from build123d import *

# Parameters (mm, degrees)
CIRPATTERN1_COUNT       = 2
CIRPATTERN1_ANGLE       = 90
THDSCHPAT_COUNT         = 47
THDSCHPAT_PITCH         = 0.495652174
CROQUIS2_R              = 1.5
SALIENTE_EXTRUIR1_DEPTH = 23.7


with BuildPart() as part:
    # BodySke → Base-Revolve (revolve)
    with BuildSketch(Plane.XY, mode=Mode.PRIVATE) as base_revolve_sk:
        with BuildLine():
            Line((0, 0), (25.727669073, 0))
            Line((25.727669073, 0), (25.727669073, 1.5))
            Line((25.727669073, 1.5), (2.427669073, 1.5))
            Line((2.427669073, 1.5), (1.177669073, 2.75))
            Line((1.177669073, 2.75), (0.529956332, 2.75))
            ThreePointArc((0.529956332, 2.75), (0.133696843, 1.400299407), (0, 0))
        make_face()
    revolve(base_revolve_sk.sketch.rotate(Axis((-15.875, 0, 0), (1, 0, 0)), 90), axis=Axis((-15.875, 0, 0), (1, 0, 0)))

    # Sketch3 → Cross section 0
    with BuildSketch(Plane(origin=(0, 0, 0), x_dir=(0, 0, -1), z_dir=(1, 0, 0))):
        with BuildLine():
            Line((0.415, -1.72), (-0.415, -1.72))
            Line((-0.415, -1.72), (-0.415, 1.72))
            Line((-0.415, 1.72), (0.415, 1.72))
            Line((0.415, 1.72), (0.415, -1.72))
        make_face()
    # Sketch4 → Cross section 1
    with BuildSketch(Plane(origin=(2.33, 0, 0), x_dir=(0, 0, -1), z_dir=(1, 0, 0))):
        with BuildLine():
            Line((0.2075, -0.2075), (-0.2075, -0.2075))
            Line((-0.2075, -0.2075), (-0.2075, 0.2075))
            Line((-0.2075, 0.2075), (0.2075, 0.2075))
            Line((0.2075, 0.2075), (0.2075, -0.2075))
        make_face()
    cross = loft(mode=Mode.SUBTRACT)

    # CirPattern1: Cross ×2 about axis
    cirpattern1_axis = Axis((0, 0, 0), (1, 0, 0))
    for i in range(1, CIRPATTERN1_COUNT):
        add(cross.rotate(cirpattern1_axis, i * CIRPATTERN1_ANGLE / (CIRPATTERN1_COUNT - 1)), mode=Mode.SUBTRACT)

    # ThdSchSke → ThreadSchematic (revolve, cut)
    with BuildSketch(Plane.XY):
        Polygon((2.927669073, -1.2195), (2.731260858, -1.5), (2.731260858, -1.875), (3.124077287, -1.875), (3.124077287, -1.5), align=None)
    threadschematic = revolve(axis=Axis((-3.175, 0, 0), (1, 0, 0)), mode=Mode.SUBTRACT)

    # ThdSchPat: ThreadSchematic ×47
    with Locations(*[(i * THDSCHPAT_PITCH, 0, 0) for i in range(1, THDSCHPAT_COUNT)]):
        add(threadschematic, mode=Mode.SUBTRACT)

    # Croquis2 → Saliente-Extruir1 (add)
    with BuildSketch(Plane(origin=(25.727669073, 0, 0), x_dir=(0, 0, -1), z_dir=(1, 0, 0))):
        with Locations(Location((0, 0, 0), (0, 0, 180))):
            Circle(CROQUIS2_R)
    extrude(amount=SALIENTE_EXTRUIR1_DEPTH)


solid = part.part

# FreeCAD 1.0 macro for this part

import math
import FreeCAD as App
import Part
import Sketcher
from FreeCAD import Vector
Q = App.Units.Quantity

doc = App.newDocument("Part")
body = doc.addObject("PartDesign::Body", "Body")

sketch1 = body.newObject("Sketcher::SketchObject", "Sketch")
sketch1.AttachmentSupport = (doc.getObject("XY_Plane"), [""])
sketch1.MapMode = "FlatFace"
sketch1.addGeometry(Part.LineSegment(Vector(0, 0, 0), Vector(25.727669, 0, 0)), False)
sketch1.addGeometry(Part.LineSegment(Vector(25.727669, 0, 0), Vector(25.727669, 1.5, 0)), False)
sketch1.addGeometry(Part.LineSegment(Vector(25.727669, 1.5, 0), Vector(2.427669, 1.5, 0)), False)
sketch1.addGeometry(Part.LineSegment(Vector(2.427669, 1.5, 0), Vector(1.177669, 2.75, 0)), False)
sketch1.addGeometry(Part.LineSegment(Vector(1.177669, 2.75, 0), Vector(0.529956, 2.75, 0)), False)
sketch1.addGeometry(Part.ArcOfCircle(Part.Circle(Vector(7.4, 0, 0), Vector(0, 0, 1), 7.4), math.radians(158.184338), math.radians(180)), False)
sketch1.addConstraint(Sketcher.Constraint("Coincident", 0, 2, 1, 1))
sketch1.addConstraint(Sketcher.Constraint("Coincident", 1, 2, 2, 1))
sketch1.addConstraint(Sketcher.Constraint("Coincident", 2, 2, 3, 1))
sketch1.addConstraint(Sketcher.Constraint("Coincident", 3, 2, 4, 1))
sketch1.addConstraint(Sketcher.Constraint("Coincident", 4, 2, 5, 1))
sketch1.addConstraint(Sketcher.Constraint("Coincident", 5, 2, 0, 1))
sketch1.addConstraint(Sketcher.Constraint("Horizontal", 0))
sketch1.addConstraint(Sketcher.Constraint("Vertical", 1))
sketch1.addConstraint(Sketcher.Constraint("Horizontal", 2))
sketch1.addConstraint(Sketcher.Constraint("Horizontal", 4))
sketch1.addConstraint(Sketcher.Constraint("Coincident", 5, 2, -1, 1))
sketch1.addConstraint(Sketcher.Constraint("PointOnObject", 5, 3, -1))
sketch1.addConstraint(Sketcher.Constraint("Radius", 5, Q("7.4 mm")))
sketch1.addConstraint(Sketcher.Constraint("Angle", 3, Q("135 deg")))
sketch1.addConstraint(Sketcher.Constraint("DistanceX", 2, 2, 2, 1, Q("23.3 mm")))
sketch1.addConstraint(Sketcher.Constraint("DistanceY", 1, 1, 1, 2, Q("1.5 mm")))
sketch1.addConstraint(Sketcher.Constraint("DistanceY", -1, 1, 3, 2, Q("2.75 mm")))
sketch1.addConstraint(Sketcher.Constraint("DistanceX", 0, 1, 0, 2, Q("25.727669 mm")))
revolution = body.newObject("PartDesign::Revolution", "Revolution")
revolution.Profile = sketch1
revolution.ReferenceAxis = (sketch1, ["H_Axis"])
revolution.Angle = 360

sketch2 = body.newObject("Sketcher::SketchObject", "Sketch001")
sketch2.AttachmentSupport = (doc.getObject("YZ_Plane"), [""])
sketch2.MapMode = "FlatFace"
sketch2.addGeometry(Part.LineSegment(Vector(-1.72, 0.415, 0), Vector(-1.72, -0.415, 0)), False)
sketch2.addGeometry(Part.LineSegment(Vector(-1.72, -0.415, 0), Vector(1.72, -0.415, 0)), False)
sketch2.addGeometry(Part.LineSegment(Vector(1.72, -0.415, 0), Vector(1.72, 0.415, 0)), False)
sketch2.addGeometry(Part.LineSegment(Vector(1.72, 0.415, 0), Vector(-1.72, 0.415, 0)), False)
sketch2.addConstraint(Sketcher.Constraint("Coincident", 0, 2, 1, 1))
sketch2.addConstraint(Sketcher.Constraint("Coincident", 1, 2, 2, 1))
sketch2.addConstraint(Sketcher.Constraint("Coincident", 2, 2, 3, 1))
sketch2.addConstraint(Sketcher.Constraint("Coincident", 3, 2, 0, 1))
sketch2.addConstraint(Sketcher.Constraint("Vertical", 0))
sketch2.addConstraint(Sketcher.Constraint("Horizontal", 1))
sketch2.addConstraint(Sketcher.Constraint("Vertical", 2))
sketch2.addConstraint(Sketcher.Constraint("Horizontal", 3))
sketch2.addConstraint(Sketcher.Constraint("Symmetric", 0, 2, 2, 2, -1, 1))
sketch2.addConstraint(Sketcher.Constraint("DistanceX", 1, 1, 1, 2, Q("3.44 mm")))
sketch2.addConstraint(Sketcher.Constraint("DistanceY", 0, 2, 0, 1, Q("0.83 mm")))

sketch3 = body.newObject("Sketcher::SketchObject", "Sketch002")
sketch3.AttachmentSupport = (doc.getObject("YZ_Plane"), [""])
sketch3.MapMode = "FlatFace"
sketch3.AttachmentOffset = App.Placement(Vector(0, 0, 2.33), App.Rotation())
sketch3.addGeometry(Part.LineSegment(Vector(-0.2075, 0.2075, 0), Vector(-0.2075, -0.2075, 0)), False)
sketch3.addGeometry(Part.LineSegment(Vector(-0.2075, -0.2075, 0), Vector(0.2075, -0.2075, 0)), False)
sketch3.addGeometry(Part.LineSegment(Vector(0.2075, -0.2075, 0), Vector(0.2075, 0.2075, 0)), False)
sketch3.addGeometry(Part.LineSegment(Vector(0.2075, 0.2075, 0), Vector(-0.2075, 0.2075, 0)), False)
sketch3.addConstraint(Sketcher.Constraint("Coincident", 0, 2, 1, 1))
sketch3.addConstraint(Sketcher.Constraint("Coincident", 1, 2, 2, 1))
sketch3.addConstraint(Sketcher.Constraint("Coincident", 2, 2, 3, 1))
sketch3.addConstraint(Sketcher.Constraint("Coincident", 3, 2, 0, 1))
sketch3.addConstraint(Sketcher.Constraint("Vertical", 0))
sketch3.addConstraint(Sketcher.Constraint("Horizontal", 1))
sketch3.addConstraint(Sketcher.Constraint("Vertical", 2))
sketch3.addConstraint(Sketcher.Constraint("Horizontal", 3))
sketch3.addConstraint(Sketcher.Constraint("Symmetric", 0, 2, 2, 2, -1, 1))
sketch3.addConstraint(Sketcher.Constraint("Equal", 3, 0))
sketch3.addConstraint(Sketcher.Constraint("DistanceX", 1, 1, 1, 2, Q("0.415 mm")))

subtractiveloft = body.newObject("PartDesign::SubtractiveLoft", "SubtractiveLoft")
subtractiveloft.Profile = sketch2
subtractiveloft.Sections = [sketch3]
doc.recompute()

polarpattern = body.newObject("PartDesign::PolarPattern", "PolarPattern")
polarpattern.Originals = [subtractiveloft]
polarpattern.Axis = (doc.getObject("X_Axis"), [""])
polarpattern.Angle = 90
polarpattern.Occurrences = 2
body.Tip = polarpattern

sketch4 = body.newObject("Sketcher::SketchObject", "Sketch003")
sketch4.AttachmentSupport = (doc.getObject("XY_Plane"), [""])
sketch4.MapMode = "FlatFace"
sketch4.addGeometry(Part.LineSegment(Vector(2.927669, -1.2195, 0), Vector(2.731261, -1.5, 0)), False)
sketch4.addGeometry(Part.LineSegment(Vector(2.731261, -1.5, 0), Vector(2.731261, -1.875, 0)), False)
sketch4.addGeometry(Part.LineSegment(Vector(2.731261, -1.875, 0), Vector(3.124077, -1.875, 0)), False)
sketch4.addGeometry(Part.LineSegment(Vector(3.124077, -1.875, 0), Vector(3.124077, -1.5, 0)), False)
sketch4.addGeometry(Part.LineSegment(Vector(3.124077, -1.5, 0), Vector(2.927669, -1.2195, 0)), False)
sketch4.addConstraint(Sketcher.Constraint("Coincident", 0, 2, 1, 1))
sketch4.addConstraint(Sketcher.Constraint("Coincident", 1, 2, 2, 1))
sketch4.addConstraint(Sketcher.Constraint("Coincident", 2, 2, 3, 1))
sketch4.addConstraint(Sketcher.Constraint("Coincident", 3, 2, 4, 1))
sketch4.addConstraint(Sketcher.Constraint("Coincident", 4, 2, 0, 1))
sketch4.addConstraint(Sketcher.Constraint("Vertical", 1))
sketch4.addConstraint(Sketcher.Constraint("Horizontal", 2))
sketch4.addConstraint(Sketcher.Constraint("Vertical", 3))
sketch4.addConstraint(Sketcher.Constraint("Horizontal", 0, 2, 3, 2))
sketch4.addConstraint(Sketcher.Constraint("Equal", 0, 4))
sketch4.addConstraint(Sketcher.Constraint("Angle", 0, Q("-125 deg")))
sketch4.addConstraint(Sketcher.Constraint("DistanceY", 0, 2, -1, 1, Q("1.5 mm")))
sketch4.addConstraint(Sketcher.Constraint("DistanceY", 1, 2, 1, 1, Q("0.375 mm")))
sketch4.addConstraint(Sketcher.Constraint("DistanceY", 4, 2, -1, 1, Q("1.2195 mm")))
sketch4.addConstraint(Sketcher.Constraint("DistanceX", -1, 1, 0, 2, Q("2.731261 mm")))
groove = body.newObject("PartDesign::Groove", "Groove")
groove.Profile = sketch4
groove.ReferenceAxis = (sketch4, ["H_Axis"])
groove.Angle = 360
doc.recompute()

linearpattern = body.newObject("PartDesign::LinearPattern", "LinearPattern")
linearpattern.Originals = [groove]
linearpattern.Direction = (doc.getObject("X_Axis"), [""])
linearpattern.Mode = "offset"
linearpattern.Offset = 0.495652
linearpattern.Occurrences = 47
body.Tip = linearpattern

sketch5 = body.newObject("Sketcher::SketchObject", "Sketch004")
sketch5.AttachmentSupport = (doc.getObject("YZ_Plane"), [""])
sketch5.MapMode = "FlatFace"
sketch5.AttachmentOffset = App.Placement(Vector(0, 0, 25.727669), App.Rotation())
sketch5.addGeometry(Part.Circle(Vector(0, 0, 0), Vector(0, 0, 1), 1.5), False)
sketch5.addConstraint(Sketcher.Constraint("Coincident", 0, 3, -1, 1))
sketch5.addConstraint(Sketcher.Constraint("Diameter", 0, Q("3 mm")))
pad1 = body.newObject("PartDesign::Pad", "Pad")
pad1.Profile = sketch5
pad1.Length = 23.7

doc.recompute()
